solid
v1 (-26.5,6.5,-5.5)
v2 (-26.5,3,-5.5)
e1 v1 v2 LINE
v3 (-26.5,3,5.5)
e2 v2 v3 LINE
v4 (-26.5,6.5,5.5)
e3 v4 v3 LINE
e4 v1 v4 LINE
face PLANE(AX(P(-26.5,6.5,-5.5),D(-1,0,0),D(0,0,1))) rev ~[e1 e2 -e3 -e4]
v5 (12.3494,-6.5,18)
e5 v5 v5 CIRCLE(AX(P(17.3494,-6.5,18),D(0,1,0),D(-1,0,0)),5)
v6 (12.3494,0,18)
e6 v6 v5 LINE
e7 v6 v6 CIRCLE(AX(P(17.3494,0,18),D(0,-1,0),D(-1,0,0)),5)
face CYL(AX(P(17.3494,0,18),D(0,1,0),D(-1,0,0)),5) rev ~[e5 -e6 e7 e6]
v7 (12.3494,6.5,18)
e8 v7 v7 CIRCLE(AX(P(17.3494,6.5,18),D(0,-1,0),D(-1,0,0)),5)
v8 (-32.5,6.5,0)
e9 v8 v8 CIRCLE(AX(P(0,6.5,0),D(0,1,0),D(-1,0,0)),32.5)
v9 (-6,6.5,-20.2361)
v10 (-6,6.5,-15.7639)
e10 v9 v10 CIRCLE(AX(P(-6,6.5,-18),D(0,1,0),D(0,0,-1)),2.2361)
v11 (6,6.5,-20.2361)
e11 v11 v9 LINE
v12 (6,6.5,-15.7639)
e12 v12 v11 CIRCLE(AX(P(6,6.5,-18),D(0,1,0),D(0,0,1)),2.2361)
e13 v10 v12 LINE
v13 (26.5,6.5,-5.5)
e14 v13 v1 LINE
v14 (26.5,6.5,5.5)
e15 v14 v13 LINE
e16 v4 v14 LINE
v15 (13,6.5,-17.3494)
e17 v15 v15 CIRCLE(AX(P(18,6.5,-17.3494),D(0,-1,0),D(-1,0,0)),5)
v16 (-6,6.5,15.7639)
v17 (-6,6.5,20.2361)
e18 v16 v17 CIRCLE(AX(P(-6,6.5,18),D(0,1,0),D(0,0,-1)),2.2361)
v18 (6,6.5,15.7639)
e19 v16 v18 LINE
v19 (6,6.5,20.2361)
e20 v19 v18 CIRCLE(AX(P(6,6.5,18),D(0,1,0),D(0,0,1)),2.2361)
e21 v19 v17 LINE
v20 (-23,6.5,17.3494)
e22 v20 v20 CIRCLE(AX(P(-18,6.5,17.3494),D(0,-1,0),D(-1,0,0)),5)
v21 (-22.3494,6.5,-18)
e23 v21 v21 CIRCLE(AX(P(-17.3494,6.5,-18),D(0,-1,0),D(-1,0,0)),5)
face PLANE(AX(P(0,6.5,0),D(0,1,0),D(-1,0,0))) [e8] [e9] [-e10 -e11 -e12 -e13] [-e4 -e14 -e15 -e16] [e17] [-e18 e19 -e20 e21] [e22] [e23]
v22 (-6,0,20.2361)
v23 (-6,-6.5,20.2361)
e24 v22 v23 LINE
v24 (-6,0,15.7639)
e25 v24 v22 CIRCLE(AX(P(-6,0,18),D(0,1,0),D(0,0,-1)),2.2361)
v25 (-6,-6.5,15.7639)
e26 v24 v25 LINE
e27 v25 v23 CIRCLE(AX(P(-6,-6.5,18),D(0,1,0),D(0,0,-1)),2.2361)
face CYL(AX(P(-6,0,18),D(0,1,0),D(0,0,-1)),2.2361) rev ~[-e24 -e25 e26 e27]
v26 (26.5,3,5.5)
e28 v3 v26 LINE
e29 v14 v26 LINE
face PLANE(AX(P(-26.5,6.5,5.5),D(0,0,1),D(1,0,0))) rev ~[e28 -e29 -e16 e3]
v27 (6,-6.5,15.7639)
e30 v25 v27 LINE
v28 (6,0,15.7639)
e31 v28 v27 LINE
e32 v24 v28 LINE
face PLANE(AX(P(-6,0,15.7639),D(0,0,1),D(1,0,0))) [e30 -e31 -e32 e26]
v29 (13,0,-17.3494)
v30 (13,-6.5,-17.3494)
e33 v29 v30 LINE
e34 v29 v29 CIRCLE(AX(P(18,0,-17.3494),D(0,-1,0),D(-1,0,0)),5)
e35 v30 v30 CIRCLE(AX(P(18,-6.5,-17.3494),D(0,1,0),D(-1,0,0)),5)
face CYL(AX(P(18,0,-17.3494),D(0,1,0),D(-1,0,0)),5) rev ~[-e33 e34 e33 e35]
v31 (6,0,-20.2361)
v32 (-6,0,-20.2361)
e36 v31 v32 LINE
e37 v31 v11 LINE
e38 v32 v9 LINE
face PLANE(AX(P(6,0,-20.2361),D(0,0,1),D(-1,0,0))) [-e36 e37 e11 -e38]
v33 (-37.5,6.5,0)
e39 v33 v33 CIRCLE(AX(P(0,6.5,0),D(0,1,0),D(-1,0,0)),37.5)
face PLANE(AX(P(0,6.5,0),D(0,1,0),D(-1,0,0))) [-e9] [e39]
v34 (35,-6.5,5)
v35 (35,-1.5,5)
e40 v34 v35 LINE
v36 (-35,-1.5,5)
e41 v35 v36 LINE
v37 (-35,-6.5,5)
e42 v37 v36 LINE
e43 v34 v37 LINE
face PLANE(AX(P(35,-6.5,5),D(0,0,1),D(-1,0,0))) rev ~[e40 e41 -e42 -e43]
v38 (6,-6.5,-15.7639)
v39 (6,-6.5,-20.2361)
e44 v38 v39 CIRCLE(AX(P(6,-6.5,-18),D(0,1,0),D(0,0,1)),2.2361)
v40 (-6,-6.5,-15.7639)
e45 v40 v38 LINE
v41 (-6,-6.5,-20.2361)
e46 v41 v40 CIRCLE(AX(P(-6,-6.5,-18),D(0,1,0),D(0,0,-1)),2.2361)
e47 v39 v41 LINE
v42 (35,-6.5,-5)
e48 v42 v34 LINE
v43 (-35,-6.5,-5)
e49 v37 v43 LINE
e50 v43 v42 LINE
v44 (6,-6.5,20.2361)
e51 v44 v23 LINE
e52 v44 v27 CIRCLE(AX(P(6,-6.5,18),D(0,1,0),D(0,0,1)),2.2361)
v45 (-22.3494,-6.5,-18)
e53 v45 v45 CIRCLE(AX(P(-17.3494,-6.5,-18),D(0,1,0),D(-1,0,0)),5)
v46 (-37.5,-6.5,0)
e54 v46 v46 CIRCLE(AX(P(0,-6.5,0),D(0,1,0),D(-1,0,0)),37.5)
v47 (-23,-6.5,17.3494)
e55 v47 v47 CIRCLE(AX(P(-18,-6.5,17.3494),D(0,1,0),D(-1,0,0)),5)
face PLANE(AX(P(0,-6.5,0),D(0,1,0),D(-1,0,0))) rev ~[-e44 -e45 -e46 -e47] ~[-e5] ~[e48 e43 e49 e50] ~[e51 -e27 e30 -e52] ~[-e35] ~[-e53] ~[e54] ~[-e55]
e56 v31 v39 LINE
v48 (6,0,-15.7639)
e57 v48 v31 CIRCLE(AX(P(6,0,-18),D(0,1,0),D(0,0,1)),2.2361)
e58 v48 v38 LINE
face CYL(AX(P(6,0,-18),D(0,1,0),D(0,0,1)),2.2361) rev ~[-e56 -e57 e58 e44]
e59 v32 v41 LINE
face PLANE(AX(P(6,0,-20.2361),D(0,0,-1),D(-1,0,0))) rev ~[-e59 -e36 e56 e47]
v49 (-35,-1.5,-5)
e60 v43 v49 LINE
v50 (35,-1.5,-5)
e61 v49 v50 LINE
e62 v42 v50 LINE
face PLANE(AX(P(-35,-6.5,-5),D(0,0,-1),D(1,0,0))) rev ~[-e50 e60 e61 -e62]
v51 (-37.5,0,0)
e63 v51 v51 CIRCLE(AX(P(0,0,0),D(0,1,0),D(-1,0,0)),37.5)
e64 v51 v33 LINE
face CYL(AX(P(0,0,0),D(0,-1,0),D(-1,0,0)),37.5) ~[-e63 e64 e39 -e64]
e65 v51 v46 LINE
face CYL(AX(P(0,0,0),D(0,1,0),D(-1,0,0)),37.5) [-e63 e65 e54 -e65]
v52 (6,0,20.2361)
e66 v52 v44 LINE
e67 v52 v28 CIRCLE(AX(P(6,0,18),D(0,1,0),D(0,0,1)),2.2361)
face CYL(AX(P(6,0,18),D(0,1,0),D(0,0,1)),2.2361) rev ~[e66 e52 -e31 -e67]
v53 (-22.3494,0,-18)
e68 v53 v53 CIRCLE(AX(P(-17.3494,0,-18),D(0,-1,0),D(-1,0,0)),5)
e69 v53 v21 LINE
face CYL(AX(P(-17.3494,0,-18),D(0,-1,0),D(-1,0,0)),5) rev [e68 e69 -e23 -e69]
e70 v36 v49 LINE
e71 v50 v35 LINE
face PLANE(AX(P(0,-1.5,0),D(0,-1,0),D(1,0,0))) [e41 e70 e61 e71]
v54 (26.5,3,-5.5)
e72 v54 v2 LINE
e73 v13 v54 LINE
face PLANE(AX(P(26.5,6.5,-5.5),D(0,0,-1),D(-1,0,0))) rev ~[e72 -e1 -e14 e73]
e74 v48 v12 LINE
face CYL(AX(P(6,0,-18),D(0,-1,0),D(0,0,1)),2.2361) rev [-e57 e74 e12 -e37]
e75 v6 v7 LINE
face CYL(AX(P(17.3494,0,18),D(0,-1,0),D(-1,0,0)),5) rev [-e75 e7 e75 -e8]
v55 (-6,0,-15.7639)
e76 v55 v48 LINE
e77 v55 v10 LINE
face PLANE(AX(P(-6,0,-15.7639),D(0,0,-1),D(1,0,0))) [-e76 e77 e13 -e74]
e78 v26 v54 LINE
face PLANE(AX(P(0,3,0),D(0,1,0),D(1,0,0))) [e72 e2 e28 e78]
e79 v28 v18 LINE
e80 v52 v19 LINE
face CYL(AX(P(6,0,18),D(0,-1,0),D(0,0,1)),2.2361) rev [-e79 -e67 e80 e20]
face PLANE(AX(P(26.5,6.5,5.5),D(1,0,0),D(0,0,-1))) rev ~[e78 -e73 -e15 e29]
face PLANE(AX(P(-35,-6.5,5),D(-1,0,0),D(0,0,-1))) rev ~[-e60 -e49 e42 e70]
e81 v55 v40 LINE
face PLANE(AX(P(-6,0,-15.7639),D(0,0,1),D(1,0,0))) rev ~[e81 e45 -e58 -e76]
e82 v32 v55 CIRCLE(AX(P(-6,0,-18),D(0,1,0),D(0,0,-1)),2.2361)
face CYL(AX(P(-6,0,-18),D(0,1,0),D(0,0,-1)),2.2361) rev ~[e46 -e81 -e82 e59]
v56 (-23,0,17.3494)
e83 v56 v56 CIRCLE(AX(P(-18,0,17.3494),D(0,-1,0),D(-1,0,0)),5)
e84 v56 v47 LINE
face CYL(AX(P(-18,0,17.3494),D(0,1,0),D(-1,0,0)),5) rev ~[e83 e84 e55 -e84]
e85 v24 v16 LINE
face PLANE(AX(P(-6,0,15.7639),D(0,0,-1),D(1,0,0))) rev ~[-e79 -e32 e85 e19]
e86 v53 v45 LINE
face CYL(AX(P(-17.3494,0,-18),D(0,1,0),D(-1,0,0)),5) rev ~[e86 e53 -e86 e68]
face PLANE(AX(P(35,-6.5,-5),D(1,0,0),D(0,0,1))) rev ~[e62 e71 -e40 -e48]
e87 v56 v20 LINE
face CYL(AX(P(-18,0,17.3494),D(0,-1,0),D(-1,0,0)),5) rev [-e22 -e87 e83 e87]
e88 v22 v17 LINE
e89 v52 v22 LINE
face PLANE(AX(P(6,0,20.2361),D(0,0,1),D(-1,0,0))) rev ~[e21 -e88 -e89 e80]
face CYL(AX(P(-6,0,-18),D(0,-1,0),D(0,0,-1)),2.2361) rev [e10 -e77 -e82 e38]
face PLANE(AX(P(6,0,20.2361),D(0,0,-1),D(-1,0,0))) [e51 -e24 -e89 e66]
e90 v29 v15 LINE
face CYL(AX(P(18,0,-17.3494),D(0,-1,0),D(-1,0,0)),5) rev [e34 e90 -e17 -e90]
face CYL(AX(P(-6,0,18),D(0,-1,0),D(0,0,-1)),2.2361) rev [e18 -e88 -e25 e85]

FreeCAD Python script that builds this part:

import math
import FreeCAD as App
import Part
import Sketcher

doc = App.newDocument("Part")
body = doc.addObject("PartDesign::Body", "Body")

sketch1 = doc.addObject("Sketcher::SketchObject", "Sketch")
body.addObject(sketch1)
sketch1.AttachmentSupport = (doc.XZ_Plane, [""])
sketch1.MapMode = "FlatFace"
sketch1.addGeometry(Part.Circle(App.Vector(0, 0, 0), App.Vector(0, 0, 1), 32.5), False)
sketch1.addGeometry(Part.Circle(App.Vector(-18, 17.3494, 0), App.Vector(0, 0, 1), 5), False)
sketch1.addGeometry(Part.Circle(App.Vector(17.3494, 18, 0), App.Vector(0, 0, 1), 5), False)
sketch1.addGeometry(Part.Circle(App.Vector(18, -17.3494, 0), App.Vector(0, 0, 1), 5), False)
sketch1.addGeometry(Part.Circle(App.Vector(-17.3494, -18, 0), App.Vector(0, 0, 1), 5), False)
sketch1.addGeometry(Part.ArcOfCircle(Part.Circle(App.Vector(-6, -18, 0), App.Vector(0, 0, 1), 2.2361), math.radians(90), math.radians(270)), False)
sketch1.addGeometry(Part.LineSegment(App.Vector(-6, -20.2361, 0), App.Vector(6, -20.2361, 0)), False)
sketch1.addGeometry(Part.ArcOfCircle(Part.Circle(App.Vector(6, -18, 0), App.Vector(0, 0, 1), 2.2361), math.radians(-90), math.radians(90)), False)
sketch1.addGeometry(Part.LineSegment(App.Vector(6, -15.7639, 0), App.Vector(-6, -15.7639, 0)), False)
sketch1.addGeometry(Part.ArcOfCircle(Part.Circle(App.Vector(-6, 18, 0), App.Vector(0, 0, 1), 2.2361), math.radians(90), math.radians(270)), False)
sketch1.addGeometry(Part.LineSegment(App.Vector(-6, 15.7639, 0), App.Vector(6, 15.7639, 0)), False)
sketch1.addGeometry(Part.ArcOfCircle(Part.Circle(App.Vector(6, 18, 0), App.Vector(0, 0, 1), 2.2361), math.radians(-90), math.radians(90)), False)
sketch1.addGeometry(Part.LineSegment(App.Vector(6, 20.2361, 0), App.Vector(-6, 20.2361, 0)), False)
sketch1.addConstraint(Sketcher.Constraint("Tangent", 5, 2, 6, 1))
sketch1.addConstraint(Sketcher.Constraint("Tangent", 6, 2, 7, 1))
sketch1.addConstraint(Sketcher.Constraint("Tangent", 7, 2, 8, 1))
sketch1.addConstraint(Sketcher.Constraint("Tangent", 8, 2, 5, 1))
sketch1.addConstraint(Sketcher.Constraint("Tangent", 9, 2, 10, 1))
sketch1.addConstraint(Sketcher.Constraint("Tangent", 10, 2, 11, 1))
sketch1.addConstraint(Sketcher.Constraint("Tangent", 11, 2, 12, 1))
sketch1.addConstraint(Sketcher.Constraint("Tangent", 12, 2, 9, 1))
sketch1.addConstraint(Sketcher.Constraint("Horizontal", 6))
sketch1.addConstraint(Sketcher.Constraint("Horizontal", 8))
sketch1.addConstraint(Sketcher.Constraint("Horizontal", 10))
sketch1.addConstraint(Sketcher.Constraint("Horizontal", 12))
sketch1.addConstraint(Sketcher.Constraint("Coincident", 0, 3, -1, 1))
sketch1.addConstraint(Sketcher.Constraint("Equal", 1, 2))
sketch1.addConstraint(Sketcher.Constraint("Equal", 2, 3))
sketch1.addConstraint(Sketcher.Constraint("Equal", 3, 4))
sketch1.addConstraint(Sketcher.Constraint("Equal", 7, 9))
sketch1.addConstraint(Sketcher.Constraint("Symmetric", 1, 3, 3, 3, -1, 1))
sketch1.addConstraint(Sketcher.Constraint("Symmetric", 2, 3, 4, 3, -1, 1))
sketch1.addConstraint(Sketcher.Constraint("Symmetric", 7, 3, 9, 3, -1, 1))
sketch1.addConstraint(Sketcher.Constraint("Horizontal", 4, 3, 5, 3))
sketch1.addConstraint(Sketcher.Constraint("Vertical", 5, 3, 9, 3))
sketch1.addConstraint(Sketcher.Constraint("Vertical", 7, 3, 11, 3))
sketch1.addConstraint(Sketcher.Constraint("Diameter", 0, 65.0))
sketch1.addConstraint(Sketcher.Constraint("Diameter", 1, 10.0))
sketch1.addConstraint(Sketcher.Constraint("DistanceX", 1, 3, -1, 1, 18.0))
sketch1.addConstraint(Sketcher.Constraint("DistanceY", -1, 1, 2, 3, 18.0))
sketch1.addConstraint(Sketcher.Constraint("Radius", 5, 2.236))
sketch1.addConstraint(Sketcher.Constraint("DistanceX", 6, 1, 6, 2, 12.0))
sketch1.addConstraint(Sketcher.Constraint("DistanceY", -1, 1, 1, 3, 17.3494))
sketch1.addConstraint(Sketcher.Constraint("DistanceX", -1, 1, 2, 3, 17.3494))
pad1 = doc.addObject("PartDesign::Pad", "Pad")
body.addObject(pad1)
pad1.Profile = sketch1
pad1.Length = 6.5

sketch2 = doc.addObject("Sketcher::SketchObject", "Sketch001")
body.addObject(sketch2)
sketch2.AttachmentSupport = (doc.XZ_Plane, [""])
sketch2.MapMode = "FlatFace"
sketch2.addGeometry(Part.Circle(App.Vector(0, 0, 0), App.Vector(0, 0, 1), 37.5), False)
sketch2.addGeometry(Part.Circle(App.Vector(0, 0, 0), App.Vector(0, 0, 1), 32.5), False)
sketch2.addConstraint(Sketcher.Constraint("Coincident", 0, 3, -1, 1))
sketch2.addConstraint(Sketcher.Constraint("Coincident", 1, 3, -1, 1))
sketch2.addConstraint(Sketcher.Constraint("Diameter", 0, 75.0))
sketch2.addConstraint(Sketcher.Constraint("Diameter", 1, 65.0))
pad2 = doc.addObject("PartDesign::Pad", "Pad001")
body.addObject(pad2)
pad2.Profile = sketch2
pad2.Type = "TwoLengths"
pad2.Length = 6.5
pad2.Length2 = 6.5
pad2.Reversed = True

sketch3 = doc.addObject("Sketcher::SketchObject", "Sketch002")
body.addObject(sketch3)
sketch3.AttachmentSupport = (doc.XZ_Plane, [""])
sketch3.MapMode = "FlatFace"
sketch3.AttachmentOffset = App.Placement(App.Vector(0, 0, 6.5), App.Rotation())
sketch3.addGeometry(Part.LineSegment(App.Vector(35, -5, 0), App.Vector(35, 5, 0)), False)
sketch3.addGeometry(Part.LineSegment(App.Vector(35, 5, 0), App.Vector(-35, 5, 0)), False)
sketch3.addGeometry(Part.LineSegment(App.Vector(-35, 5, 0), App.Vector(-35, -5, 0)), False)
sketch3.addGeometry(Part.LineSegment(App.Vector(-35, -5, 0), App.Vector(35, -5, 0)), False)
sketch3.addConstraint(Sketcher.Constraint("Coincident", 0, 2, 1, 1))
sketch3.addConstraint(Sketcher.Constraint("Coincident", 1, 2, 2, 1))
sketch3.addConstraint(Sketcher.Constraint("Coincident", 2, 2, 3, 1))
sketch3.addConstraint(Sketcher.Constraint("Coincident", 3, 2, 0, 1))
sketch3.addConstraint(Sketcher.Constraint("Vertical", 0))
sketch3.addConstraint(Sketcher.Constraint("Horizontal", 1))
sketch3.addConstraint(Sketcher.Constraint("Vertical", 2))
sketch3.addConstraint(Sketcher.Constraint("Horizontal", 3))
sketch3.addConstraint(Sketcher.Constraint("Symmetric", 0, 2, 2, 2, -1, 1))
sketch3.addConstraint(Sketcher.Constraint("DistanceX", 1, 2, 1, 1, 70.0))
sketch3.addConstraint(Sketcher.Constraint("DistanceY", 0, 1, 0, 2, 10.0))
pocket1 = doc.addObject("PartDesign::Pocket", "Pocket")
body.addObject(pocket1)
pocket1.Profile = sketch3
pocket1.Length = 5

sketch4 = doc.addObject("Sketcher::SketchObject", "Sketch003")
body.addObject(sketch4)
sketch4.AttachmentSupport = (doc.XZ_Plane, [""])
sketch4.MapMode = "FlatFace"
sketch4.addGeometry(Part.Circle(App.Vector(0, 0, 0), App.Vector(0, 0, 1), 32.5), False)
sketch4.addGeometry(Part.Circle(App.Vector(-18, 17.3494, 0), App.Vector(0, 0, 1), 5), False)
sketch4.addGeometry(Part.Circle(App.Vector(17.3494, 18, 0), App.Vector(0, 0, 1), 5), False)
sketch4.addGeometry(Part.Circle(App.Vector(18, -17.3494, 0), App.Vector(0, 0, 1), 5), False)
sketch4.addGeometry(Part.Circle(App.Vector(-17.3494, -18, 0), App.Vector(0, 0, 1), 5), False)
sketch4.addGeometry(Part.ArcOfCircle(Part.Circle(App.Vector(-6, -18, 0), App.Vector(0, 0, 1), 2.2361), math.radians(90), math.radians(270)), False)
sketch4.addGeometry(Part.LineSegment(App.Vector(-6, -20.2361, 0), App.Vector(6, -20.2361, 0)), False)
sketch4.addGeometry(Part.ArcOfCircle(Part.Circle(App.Vector(6, -18, 0), App.Vector(0, 0, 1), 2.2361), math.radians(-90), math.radians(90)), False)
sketch4.addGeometry(Part.LineSegment(App.Vector(6, -15.7639, 0), App.Vector(-6, -15.7639, 0)), False)
sketch4.addGeometry(Part.ArcOfCircle(Part.Circle(App.Vector(-6, 18, 0), App.Vector(0, 0, 1), 2.2361), math.radians(90), math.radians(270)), False)
sketch4.addGeometry(Part.LineSegment(App.Vector(-6, 15.7639, 0), App.Vector(6, 15.7639, 0)), False)
sketch4.addGeometry(Part.ArcOfCircle(Part.Circle(App.Vector(6, 18, 0), App.Vector(0, 0, 1), 2.2361), math.radians(-90), math.radians(90)), False)
sketch4.addGeometry(Part.LineSegment(App.Vector(6, 20.2361, 0), App.Vector(-6, 20.2361, 0)), False)
sketch4.addConstraint(Sketcher.Constraint("Tangent", 5, 2, 6, 1))
sketch4.addConstraint(Sketcher.Constraint("Tangent", 6, 2, 7, 1))
sketch4.addConstraint(Sketcher.Constraint("Tangent", 7, 2, 8, 1))
sketch4.addConstraint(Sketcher.Constraint("Tangent", 8, 2, 5, 1))
sketch4.addConstraint(Sketcher.Constraint("Tangent", 9, 2, 10, 1))
sketch4.addConstraint(Sketcher.Constraint("Tangent", 10, 2, 11, 1))
sketch4.addConstraint(Sketcher.Constraint("Tangent", 11, 2, 12, 1))
sketch4.addConstraint(Sketcher.Constraint("Tangent", 12, 2, 9, 1))
sketch4.addConstraint(Sketcher.Constraint("Horizontal", 6))
sketch4.addConstraint(Sketcher.Constraint("Horizontal", 8))
sketch4.addConstraint(Sketcher.Constraint("Horizontal", 10))
sketch4.addConstraint(Sketcher.Constraint("Horizontal", 12))
sketch4.addConstraint(Sketcher.Constraint("Coincident", 0, 3, -1, 1))
sketch4.addConstraint(Sketcher.Constraint("Equal", 1, 2))
sketch4.addConstraint(Sketcher.Constraint("Equal", 2, 3))
sketch4.addConstraint(Sketcher.Constraint("Equal", 3, 4))
sketch4.addConstraint(Sketcher.Constraint("Equal", 7, 9))
sketch4.addConstraint(Sketcher.Constraint("Symmetric", 1, 3, 3, 3, -1, 1))
sketch4.addConstraint(Sketcher.Constraint("Symmetric", 2, 3, 4, 3, -1, 1))
sketch4.addConstraint(Sketcher.Constraint("Symmetric", 7, 3, 9, 3, -1, 1))
sketch4.addConstraint(Sketcher.Constraint("Horizontal", 4, 3, 5, 3))
sketch4.addConstraint(Sketcher.Constraint("Vertical", 5, 3, 9, 3))
sketch4.addConstraint(Sketcher.Constraint("Vertical", 7, 3, 11, 3))
sketch4.addConstraint(Sketcher.Constraint("Diameter", 0, 65.0))
sketch4.addConstraint(Sketcher.Constraint("Diameter", 1, 10.0))
sketch4.addConstraint(Sketcher.Constraint("DistanceX", 1, 3, -1, 1, 18.0))
sketch4.addConstraint(Sketcher.Constraint("DistanceY", -1, 1, 2, 3, 18.0))
sketch4.addConstraint(Sketcher.Constraint("Radius", 5, 2.236))
sketch4.addConstraint(Sketcher.Constraint("DistanceX", 6, 1, 6, 2, 12.0))
sketch4.addConstraint(Sketcher.Constraint("DistanceY", -1, 1, 1, 3, 17.3494))
sketch4.addConstraint(Sketcher.Constraint("DistanceX", -1, 1, 2, 3, 17.3494))
pad3 = doc.addObject("PartDesign::Pad", "Pad002")
body.addObject(pad3)
pad3.Profile = sketch4
pad3.Length = 6.5
pad3.Reversed = True

sketch5 = doc.addObject("Sketcher::SketchObject", "Sketch004")
body.addObject(sketch5)
sketch5.AttachmentSupport = (doc.XZ_Plane, [""])
sketch5.MapMode = "FlatFace"
sketch5.AttachmentOffset = App.Placement(App.Vector(0, 0, -6.5), App.Rotation())
sketch5.addGeometry(Part.LineSegment(App.Vector(-26.5, -5.5, 0), App.Vector(-26.5, 5.5, 0)), False)
sketch5.addGeometry(Part.LineSegment(App.Vector(-26.5, 5.5, 0), App.Vector(26.5, 5.5, 0)), False)
sketch5.addGeometry(Part.LineSegment(App.Vector(26.5, 5.5, 0), App.Vector(26.5, -5.5, 0)), False)
sketch5.addGeometry(Part.LineSegment(App.Vector(26.5, -5.5, 0), App.Vector(-26.5, -5.5, 0)), False)
sketch5.addConstraint(Sketcher.Constraint("Coincident", 0, 2, 1, 1))
sketch5.addConstraint(Sketcher.Constraint("Coincident", 1, 2, 2, 1))
sketch5.addConstraint(Sketcher.Constraint("Coincident", 2, 2, 3, 1))
sketch5.addConstraint(Sketcher.Constraint("Coincident", 3, 2, 0, 1))
sketch5.addConstraint(Sketcher.Constraint("Vertical", 0))
sketch5.addConstraint(Sketcher.Constraint("Horizontal", 1))
sketch5.addConstraint(Sketcher.Constraint("Vertical", 2))
sketch5.addConstraint(Sketcher.Constraint("Horizontal", 3))
sketch5.addConstraint(Sketcher.Constraint("Symmetric", 0, 2, 2, 2, -1, 1))
sketch5.addConstraint(Sketcher.Constraint("DistanceX", 1, 1, 1, 2, 53.0))
sketch5.addConstraint(Sketcher.Constraint("DistanceY", 0, 1, 0, 2, 11.0))
pocket2 = doc.addObject("PartDesign::Pocket", "Pocket001")
body.addObject(pocket2)
pocket2.Profile = sketch5
pocket2.Length = 3.5
pocket2.Reversed = True

doc.recompute()
